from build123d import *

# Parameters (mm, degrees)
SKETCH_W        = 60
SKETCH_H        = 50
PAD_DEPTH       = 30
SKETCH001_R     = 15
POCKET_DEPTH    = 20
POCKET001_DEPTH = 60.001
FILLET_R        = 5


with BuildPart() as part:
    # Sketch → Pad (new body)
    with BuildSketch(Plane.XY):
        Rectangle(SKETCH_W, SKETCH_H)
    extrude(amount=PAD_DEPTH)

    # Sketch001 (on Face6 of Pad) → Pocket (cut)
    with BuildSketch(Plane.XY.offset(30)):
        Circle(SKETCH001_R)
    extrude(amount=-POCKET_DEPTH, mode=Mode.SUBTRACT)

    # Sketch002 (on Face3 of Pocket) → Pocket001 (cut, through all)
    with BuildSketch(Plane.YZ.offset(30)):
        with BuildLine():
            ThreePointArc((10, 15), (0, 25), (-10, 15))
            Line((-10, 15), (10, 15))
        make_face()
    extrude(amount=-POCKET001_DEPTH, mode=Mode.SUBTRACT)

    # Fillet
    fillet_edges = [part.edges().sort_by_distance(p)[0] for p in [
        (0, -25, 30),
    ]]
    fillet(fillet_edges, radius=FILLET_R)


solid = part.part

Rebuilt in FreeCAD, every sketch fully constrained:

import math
import FreeCAD as App
import Part
import Sketcher
Q = App.Units.Quantity


def edges_at(feature, points):
    """Names of the edges that pass closest to the given points."""
    edges = feature.Shape.Edges
    near = lambda p: min(range(len(edges)), key=lambda i: edges[i].distToShape(Part.Vertex(*p))[0])
    return sorted({f"Edge{near(p) + 1}" for p in points})


def add_polygon(sketch, points):
    """Adds a closed chain of lines whose ends are joined by coincident constraints."""
    first, n = sketch.GeometryCount, len(points)
    for a, b in zip(points, points[1:] + points[:1]):
        sketch.addGeometry(Part.LineSegment(App.Vector(*a, 0), App.Vector(*b, 0)), False)
    for i in range(n):
        sketch.addConstraint(Sketcher.Constraint("Coincident", first + i, 2, first + (i + 1) % n, 1))

doc = App.newDocument("Part")
params = doc.addObject("Spreadsheet::Sheet", "Params")
for row, (alias, value) in enumerate([
    ("sketch1_width", "60 mm"),
    ("sketch1_height", "50 mm"),
    ("pad1_length", "30 mm"),
    ("sketch2_diameter", "30 mm"),
    ("pocket1_length", "20 mm"),
    ("sketch3_radius", "10 mm"),
    ("fillet_radius", "5 mm"),
], start=1):
    params.set(f"A{row}", alias)
    params.set(f"B{row}", "=" + value)
    params.setAlias(f"B{row}", alias)

body = doc.addObject("PartDesign::Body", "Body")

# Sketch on XY plane
sketch1 = doc.addObject("Sketcher::SketchObject", "Sketch")
body.addObject(sketch1)
sketch1.AttachmentSupport = (doc.XY_Plane, [""])
sketch1.MapMode = "FlatFace"
add_polygon(sketch1, [(-30, 25), (-30, -25), (30, -25), (30, 25)])  # lines 0-3
sketch1.addConstraint(Sketcher.Constraint("Vertical", 0))
sketch1.addConstraint(Sketcher.Constraint("Horizontal", 1))
sketch1.addConstraint(Sketcher.Constraint("Vertical", 2))
sketch1.addConstraint(Sketcher.Constraint("Horizontal", 3))
sketch1.addConstraint(Sketcher.Constraint("Symmetric", 0, 2, 2, 2, -1, 1))
sketch1.addConstraint(Sketcher.Constraint("DistanceX", 1, 1, 1, 2, Q("60 mm")))
sketch1.addConstraint(Sketcher.Constraint("DistanceY", 0, 2, 0, 1, Q("50 mm")))
sketch1.setExpression("Constraints[9]", "Params.sketch1_width")
sketch1.setExpression("Constraints[10]", "Params.sketch1_height")
pad1 = doc.addObject("PartDesign::Pad", "Pad")
body.addObject(pad1)
pad1.Profile = sketch1
pad1.setExpression("Length", "Params.pad1_length")

# Sketch on XY plane
sketch2 = doc.addObject("Sketcher::SketchObject", "Sketch001")
body.addObject(sketch2)
sketch2.AttachmentSupport = (doc.XY_Plane, [""])
sketch2.MapMode = "FlatFace"
sketch2.AttachmentOffset = App.Placement(App.Vector(0, 0, 30), App.Rotation())
sketch2.addGeometry(Part.Circle(App.Vector(0, 0, 0), App.Vector(0, 0, 1), 15), False)
sketch2.addConstraint(Sketcher.Constraint("Coincident", 0, 3, -1, 1))
sketch2.addConstraint(Sketcher.Constraint("Diameter", 0, Q("30 mm")))
sketch2.setExpression("Constraints[1]", "Params.sketch2_diameter")
pocket1 = doc.addObject("PartDesign::Pocket", "Pocket")
body.addObject(pocket1)
pocket1.Profile = sketch2
pocket1.setExpression("Length", "Params.pocket1_length")

# Sketch on YZ plane
sketch3 = doc.addObject("Sketcher::SketchObject", "Sketch002")
body.addObject(sketch3)
sketch3.AttachmentSupport = (doc.YZ_Plane, [""])
sketch3.MapMode = "FlatFace"
sketch3.AttachmentOffset = App.Placement(App.Vector(0, 0, 30), App.Rotation())
sketch3.addGeometry(Part.ArcOfCircle(Part.Circle(App.Vector(0, 15, 0), App.Vector(0, 0, 1), 10), math.radians(0), math.radians(180)), False)
sketch3.addGeometry(Part.LineSegment(App.Vector(-10, 15, 0), App.Vector(10, 15, 0)), False)
sketch3.addConstraint(Sketcher.Constraint("Coincident", 0, 1, 1, 2))
sketch3.addConstraint(Sketcher.Constraint("Coincident", 1, 1, 0, 2))
sketch3.addConstraint(Sketcher.Constraint("Horizontal", 1))
sketch3.addConstraint(Sketcher.Constraint("PointOnObject", 0, 3, -2))
sketch3.addConstraint(Sketcher.Constraint("Radius", 0, Q("10 mm")))
sketch3.addConstraint(Sketcher.Constraint("DistanceY", -1, 1, 0, 3, Q("15 mm")))
sketch3.addConstraint(Sketcher.Constraint("DistanceY", -1, 1, 0, 1, Q("15 mm")))
sketch3.setExpression("Constraints[4]", "Params.sketch3_radius")
pocket2 = doc.addObject("PartDesign::Pocket", "Pocket001")
body.addObject(pocket2)
pocket2.Profile = sketch3
pocket2.Type = "ThroughAll"
doc.recompute()

fillet = doc.addObject("PartDesign::Fillet", "Fillet")
body.addObject(fillet)
fillet.Base = (pocket2, edges_at(pocket2, [(0, -25, 30)]))
fillet.setExpression("Radius", "Params.fillet_radius")

doc.recompute()
